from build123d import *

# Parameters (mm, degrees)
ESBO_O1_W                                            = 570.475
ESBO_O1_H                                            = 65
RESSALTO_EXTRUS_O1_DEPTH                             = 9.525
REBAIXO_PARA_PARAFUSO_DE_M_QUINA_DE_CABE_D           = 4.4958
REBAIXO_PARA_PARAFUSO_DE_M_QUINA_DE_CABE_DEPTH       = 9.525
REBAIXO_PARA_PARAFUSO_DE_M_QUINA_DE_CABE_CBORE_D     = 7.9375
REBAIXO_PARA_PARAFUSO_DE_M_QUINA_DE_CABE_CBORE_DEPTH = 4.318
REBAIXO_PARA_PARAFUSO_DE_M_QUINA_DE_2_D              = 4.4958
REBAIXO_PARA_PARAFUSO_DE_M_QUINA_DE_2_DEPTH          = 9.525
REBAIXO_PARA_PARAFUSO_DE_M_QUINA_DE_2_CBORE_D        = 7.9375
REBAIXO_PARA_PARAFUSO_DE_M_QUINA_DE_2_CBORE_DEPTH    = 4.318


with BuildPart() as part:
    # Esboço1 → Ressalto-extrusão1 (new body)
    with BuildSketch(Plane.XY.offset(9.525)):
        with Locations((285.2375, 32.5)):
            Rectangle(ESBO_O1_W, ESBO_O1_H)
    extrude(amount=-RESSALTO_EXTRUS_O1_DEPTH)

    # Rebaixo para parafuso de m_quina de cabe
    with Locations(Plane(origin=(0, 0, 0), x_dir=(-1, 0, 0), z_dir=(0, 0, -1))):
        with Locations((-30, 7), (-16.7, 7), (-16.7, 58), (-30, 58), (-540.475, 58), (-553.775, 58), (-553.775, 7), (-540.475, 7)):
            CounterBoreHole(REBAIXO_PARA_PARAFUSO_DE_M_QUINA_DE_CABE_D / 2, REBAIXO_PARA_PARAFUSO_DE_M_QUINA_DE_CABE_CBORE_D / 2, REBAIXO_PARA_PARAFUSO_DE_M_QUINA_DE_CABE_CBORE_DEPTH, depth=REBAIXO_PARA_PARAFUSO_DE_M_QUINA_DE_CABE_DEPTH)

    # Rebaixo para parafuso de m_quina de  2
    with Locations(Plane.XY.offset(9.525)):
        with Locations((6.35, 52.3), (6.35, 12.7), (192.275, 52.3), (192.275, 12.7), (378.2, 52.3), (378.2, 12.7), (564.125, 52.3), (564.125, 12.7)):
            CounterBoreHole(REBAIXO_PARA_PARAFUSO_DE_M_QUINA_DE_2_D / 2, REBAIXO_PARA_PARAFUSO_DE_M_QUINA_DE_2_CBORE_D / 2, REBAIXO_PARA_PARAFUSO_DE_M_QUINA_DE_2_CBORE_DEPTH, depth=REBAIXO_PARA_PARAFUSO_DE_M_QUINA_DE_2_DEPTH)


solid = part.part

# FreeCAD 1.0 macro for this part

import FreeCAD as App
import Part
import Sketcher
Q = App.Units.Quantity


def add_polygon(sketch, points):
    """Adds a closed chain of lines whose ends are joined by coincident constraints."""
    first, n = sketch.GeometryCount, len(points)
    for a, b in zip(points, points[1:] + points[:1]):
        sketch.addGeometry(Part.LineSegment(App.Vector(*a, 0), App.Vector(*b, 0)), False)
    for i in range(n):
        sketch.addConstraint(Sketcher.Constraint("Coincident", first + i, 2, first + (i + 1) % n, 1))

doc = App.newDocument("Part")
body = doc.addObject("PartDesign::Body", "Body")

# Sketch on XY plane
sketch1 = body.newObject("Sketcher::SketchObject", "Sketch")
sketch1.AttachmentSupport = (doc.getObject("XY_Plane"), [""])
sketch1.MapMode = "FlatFace"
sketch1.AttachmentOffset = App.Placement(App.Vector(0, 0, 0.375 * 25.4), App.Rotation())
add_polygon(sketch1, [(0, 65), (0, 0), (570, 0), (570, 65)])  # lines 0-3
sketch1.addConstraint(Sketcher.Constraint("Vertical", 0))
sketch1.addConstraint(Sketcher.Constraint("Horizontal", 1))
sketch1.addConstraint(Sketcher.Constraint("Vertical", 2))
sketch1.addConstraint(Sketcher.Constraint("Horizontal", 3))
sketch1.addConstraint(Sketcher.Constraint("Coincident", 0, 2, -1, 1))
sketch1.addConstraint(Sketcher.Constraint("DistanceX", 1, 1, 1, 2, 570.475))
sketch1.addConstraint(Sketcher.Constraint("DistanceY", 0, 2, 0, 1, 65.0))
pad1 = body.newObject("PartDesign::Pad", "Pad")
pad1.Profile = sketch1
pad1.Length = Q("0.375 in")
pad1.Reversed = True

# Sketch on XY plane
sketch2 = body.newObject("Sketcher::SketchObject", "Sketch001")
sketch2.AttachmentSupport = (doc.getObject("XY_Plane"), [""])
sketch2.MapMode = "FlatFace"
sketch2.addGeometry(Part.Circle(App.Vector(30, 7, 0), App.Vector(0, 0, 1), 2.2), False)
sketch2.addGeometry(Part.Circle(App.Vector(16.7, 7, 0), App.Vector(0, 0, 1), 2.2), False)
sketch2.addGeometry(Part.Circle(App.Vector(16.7, 58, 0), App.Vector(0, 0, 1), 2.2), False)
sketch2.addGeometry(Part.Circle(App.Vector(30, 58, 0), App.Vector(0, 0, 1), 2.2), False)
sketch2.addGeometry(Part.Circle(App.Vector(540.5, 58, 0), App.Vector(0, 0, 1), 2.2), False)
sketch2.addGeometry(Part.Circle(App.Vector(553.8, 58, 0), App.Vector(0, 0, 1), 2.2), False)
sketch2.addGeometry(Part.Circle(App.Vector(553.8, 7, 0), App.Vector(0, 0, 1), 2.2), False)
sketch2.addGeometry(Part.Circle(App.Vector(540.5, 7, 0), App.Vector(0, 0, 1), 2.2), False)
sketch2.addConstraint(Sketcher.Constraint("Equal", 0, 1))
sketch2.addConstraint(Sketcher.Constraint("Equal", 1, 2))
sketch2.addConstraint(Sketcher.Constraint("Equal", 2, 3))
sketch2.addConstraint(Sketcher.Constraint("Equal", 3, 4))
sketch2.addConstraint(Sketcher.Constraint("Equal", 4, 5))
sketch2.addConstraint(Sketcher.Constraint("Equal", 5, 6))
sketch2.addConstraint(Sketcher.Constraint("Equal", 6, 7))
sketch2.addConstraint(Sketcher.Constraint("Horizontal", 0, 3, 1, 3))
sketch2.addConstraint(Sketcher.Constraint("Horizontal", 2, 3, 3, 3))
sketch2.addConstraint(Sketcher.Constraint("Horizontal", 3, 3, 4, 3))
sketch2.addConstraint(Sketcher.Constraint("Horizontal", 4, 3, 5, 3))
sketch2.addConstraint(Sketcher.Constraint("Horizontal", 1, 3, 6, 3))
sketch2.addConstraint(Sketcher.Constraint("Horizontal", 6, 3, 7, 3))
sketch2.addConstraint(Sketcher.Constraint("Vertical", 1, 3, 2, 3))
sketch2.addConstraint(Sketcher.Constraint("Vertical", 0, 3, 3, 3))
sketch2.addConstraint(Sketcher.Constraint("Vertical", 5, 3, 6, 3))
sketch2.addConstraint(Sketcher.Constraint("Vertical", 4, 3, 7, 3))
sketch2.addConstraint(Sketcher.Constraint("Diameter", 0, Q("0.177 in")))
sketch2.addConstraint(Sketcher.Constraint("DistanceX", -1, 1, 0, 3, 30.0))
sketch2.addConstraint(Sketcher.Constraint("DistanceY", -1, 1, 0, 3, 7.0))
sketch2.addConstraint(Sketcher.Constraint("DistanceX", -1, 1, 1, 3, 16.7))
sketch2.addConstraint(Sketcher.Constraint("DistanceY", -1, 1, 2, 3, 58.0))
sketch2.addConstraint(Sketcher.Constraint("DistanceX", -1, 1, 4, 3, 540.475))
sketch2.addConstraint(Sketcher.Constraint("DistanceX", -1, 1, 5, 3, 553.775))
doc.recompute()
hole = body.newObject("PartDesign::Hole", "Hole")
hole.Profile = sketch2
hole.ThreadType = "None"
hole.Diameter = Q("0.177 in")
hole.DepthType = "Dimension"
hole.Depth = Q("0.375 in")
hole.DrillPoint = "Flat"
hole.HoleCutType = "Counterbore"
hole.HoleCutDiameter = Q("0.3125 in")
hole.HoleCutDepth = Q("0.17 in")
hole.Reversed = True

# Sketch on XY plane
sketch3 = body.newObject("Sketcher::SketchObject", "Sketch002")
sketch3.AttachmentSupport = (doc.getObject("XY_Plane"), [""])
sketch3.MapMode = "FlatFace"
sketch3.AttachmentOffset = App.Placement(App.Vector(0, 0, 0.375 * 25.4), App.Rotation())
sketch3.addGeometry(Part.Circle(App.Vector(6.3, 52.3, 0), App.Vector(0, 0, 1), 2.2), False)
sketch3.addGeometry(Part.Circle(App.Vector(6.3, 12.7, 0), App.Vector(0, 0, 1), 2.2), False)
sketch3.addGeometry(Part.Circle(App.Vector(192.3, 52.3, 0), App.Vector(0, 0, 1), 2.2), False)
sketch3.addGeometry(Part.Circle(App.Vector(192.3, 12.7, 0), App.Vector(0, 0, 1), 2.2), False)
sketch3.addGeometry(Part.Circle(App.Vector(378.2, 52.3, 0), App.Vector(0, 0, 1), 2.2), False)
sketch3.addGeometry(Part.Circle(App.Vector(378.2, 12.7, 0), App.Vector(0, 0, 1), 2.2), False)
sketch3.addGeometry(Part.Circle(App.Vector(564.1, 52.3, 0), App.Vector(0, 0, 1), 2.2), False)
sketch3.addGeometry(Part.Circle(App.Vector(564.1, 12.7, 0), App.Vector(0, 0, 1), 2.2), False)
sketch3.addConstraint(Sketcher.Constraint("Equal", 0, 1))
sketch3.addConstraint(Sketcher.Constraint("Equal", 1, 2))
sketch3.addConstraint(Sketcher.Constraint("Equal", 2, 3))
sketch3.addConstraint(Sketcher.Constraint("Equal", 3, 4))
sketch3.addConstraint(Sketcher.Constraint("Equal", 4, 5))
sketch3.addConstraint(Sketcher.Constraint("Equal", 5, 6))
sketch3.addConstraint(Sketcher.Constraint("Equal", 6, 7))
sketch3.addConstraint(Sketcher.Constraint("Horizontal", 0, 3, 2, 3))
sketch3.addConstraint(Sketcher.Constraint("Horizontal", 1, 3, 3, 3))
sketch3.addConstraint(Sketcher.Constraint("Horizontal", 2, 3, 4, 3))
sketch3.addConstraint(Sketcher.Constraint("Horizontal", 3, 3, 5, 3))
sketch3.addConstraint(Sketcher.Constraint("Horizontal", 4, 3, 6, 3))
sketch3.addConstraint(Sketcher.Constraint("Horizontal", 5, 3, 7, 3))
sketch3.addConstraint(Sketcher.Constraint("Vertical", 0, 3, 1, 3))
sketch3.addConstraint(Sketcher.Constraint("Vertical", 2, 3, 3, 3))
sketch3.addConstraint(Sketcher.Constraint("Vertical", 4, 3, 5, 3))
sketch3.addConstraint(Sketcher.Constraint("Vertical", 6, 3, 7, 3))
sketch3.addConstraint(Sketcher.Constraint("Diameter", 0, Q("0.177 in")))
sketch3.addConstraint(Sketcher.Constraint("DistanceY", -1, 1, 1, 3, Q("0.5 in")))
sketch3.addConstraint(Sketcher.Constraint("DistanceX", -1, 1, 0, 3, Q("0.25 in")))
sketch3.addConstraint(Sketcher.Constraint("DistanceY", -1, 1, 0, 3, 52.3))
sketch3.addConstraint(Sketcher.Constraint("DistanceX", -1, 1, 2, 3, 192.275))
sketch3.addConstraint(Sketcher.Constraint("DistanceX", -1, 1, 4, 3, 378.2))
sketch3.addConstraint(Sketcher.Constraint("DistanceX", -1, 1, 6, 3, 564.125))
doc.recompute()
hole2 = body.newObject("PartDesign::Hole", "Hole001")
hole2.Profile = sketch3
hole2.ThreadType = "None"
hole2.Diameter = Q("0.177 in")
hole2.DepthType = "Dimension"
hole2.Depth = Q("0.375 in")
hole2.DrillPoint = "Flat"
hole2.HoleCutType = "Counterbore"
hole2.HoleCutDiameter = Q("0.3125 in")
hole2.HoleCutDepth = Q("0.17 in")

doc.recompute()
